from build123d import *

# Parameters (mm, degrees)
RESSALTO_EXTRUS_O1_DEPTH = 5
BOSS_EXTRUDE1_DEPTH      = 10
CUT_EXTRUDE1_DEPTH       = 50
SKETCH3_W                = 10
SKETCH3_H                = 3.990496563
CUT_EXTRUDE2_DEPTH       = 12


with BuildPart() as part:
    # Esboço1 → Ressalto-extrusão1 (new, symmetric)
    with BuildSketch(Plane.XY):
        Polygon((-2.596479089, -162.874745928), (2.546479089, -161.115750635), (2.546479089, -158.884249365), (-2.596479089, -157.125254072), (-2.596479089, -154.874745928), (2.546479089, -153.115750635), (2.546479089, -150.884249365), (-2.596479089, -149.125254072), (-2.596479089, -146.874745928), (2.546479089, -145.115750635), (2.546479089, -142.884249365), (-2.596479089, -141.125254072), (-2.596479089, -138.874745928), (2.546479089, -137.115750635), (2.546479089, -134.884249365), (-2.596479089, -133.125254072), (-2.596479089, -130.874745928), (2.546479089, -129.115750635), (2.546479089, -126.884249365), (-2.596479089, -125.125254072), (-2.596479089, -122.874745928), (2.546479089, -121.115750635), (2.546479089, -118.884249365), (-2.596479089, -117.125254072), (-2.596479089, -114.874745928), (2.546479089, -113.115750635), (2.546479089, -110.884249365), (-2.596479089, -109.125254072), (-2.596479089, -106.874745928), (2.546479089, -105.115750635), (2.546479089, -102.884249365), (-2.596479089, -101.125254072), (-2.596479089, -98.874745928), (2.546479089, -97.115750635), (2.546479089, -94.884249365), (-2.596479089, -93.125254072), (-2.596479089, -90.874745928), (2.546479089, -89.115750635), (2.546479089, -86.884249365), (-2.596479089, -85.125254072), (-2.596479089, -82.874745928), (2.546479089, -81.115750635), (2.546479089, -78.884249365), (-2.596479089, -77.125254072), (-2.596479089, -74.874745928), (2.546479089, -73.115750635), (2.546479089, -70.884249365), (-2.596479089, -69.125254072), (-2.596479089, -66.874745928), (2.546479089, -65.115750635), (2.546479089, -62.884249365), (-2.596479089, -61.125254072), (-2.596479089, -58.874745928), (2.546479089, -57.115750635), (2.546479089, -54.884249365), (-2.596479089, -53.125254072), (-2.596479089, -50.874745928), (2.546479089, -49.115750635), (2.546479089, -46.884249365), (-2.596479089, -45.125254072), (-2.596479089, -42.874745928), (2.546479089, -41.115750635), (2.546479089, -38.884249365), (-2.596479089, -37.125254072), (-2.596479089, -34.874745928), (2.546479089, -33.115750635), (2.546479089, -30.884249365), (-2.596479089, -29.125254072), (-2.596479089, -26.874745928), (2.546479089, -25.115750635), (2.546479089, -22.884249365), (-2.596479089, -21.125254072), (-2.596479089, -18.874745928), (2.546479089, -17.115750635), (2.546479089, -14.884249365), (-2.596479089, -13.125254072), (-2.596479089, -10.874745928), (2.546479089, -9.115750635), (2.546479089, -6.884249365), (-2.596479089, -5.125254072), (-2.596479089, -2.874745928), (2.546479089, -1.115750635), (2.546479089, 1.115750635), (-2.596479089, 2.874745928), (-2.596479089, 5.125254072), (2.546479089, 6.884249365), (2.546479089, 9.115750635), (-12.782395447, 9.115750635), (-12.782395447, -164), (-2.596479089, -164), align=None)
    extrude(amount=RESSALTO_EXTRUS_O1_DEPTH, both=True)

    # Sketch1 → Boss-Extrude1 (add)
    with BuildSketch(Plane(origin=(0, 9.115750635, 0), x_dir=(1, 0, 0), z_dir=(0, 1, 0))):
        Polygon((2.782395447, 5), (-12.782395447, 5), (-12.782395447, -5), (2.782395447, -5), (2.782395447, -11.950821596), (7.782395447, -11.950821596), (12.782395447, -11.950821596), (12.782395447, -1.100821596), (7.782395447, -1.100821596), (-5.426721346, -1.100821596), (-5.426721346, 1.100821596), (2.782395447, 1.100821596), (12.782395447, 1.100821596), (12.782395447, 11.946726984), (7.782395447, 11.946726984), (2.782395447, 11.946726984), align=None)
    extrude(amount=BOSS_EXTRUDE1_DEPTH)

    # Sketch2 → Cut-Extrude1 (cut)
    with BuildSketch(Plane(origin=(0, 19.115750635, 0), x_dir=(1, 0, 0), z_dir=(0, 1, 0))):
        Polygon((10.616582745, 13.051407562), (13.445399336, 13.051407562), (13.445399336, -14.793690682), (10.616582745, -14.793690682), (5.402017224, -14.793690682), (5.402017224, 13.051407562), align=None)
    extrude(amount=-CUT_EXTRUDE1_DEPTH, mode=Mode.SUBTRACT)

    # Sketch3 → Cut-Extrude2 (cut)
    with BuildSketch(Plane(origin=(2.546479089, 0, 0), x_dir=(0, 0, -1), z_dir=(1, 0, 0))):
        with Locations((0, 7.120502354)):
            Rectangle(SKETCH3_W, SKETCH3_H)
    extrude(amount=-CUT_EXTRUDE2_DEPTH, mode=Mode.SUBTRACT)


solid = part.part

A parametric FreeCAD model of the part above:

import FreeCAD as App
import Part
import Sketcher
from FreeCAD import Vector
Q = App.Units.Quantity


def add_polygon(sketch, points):
    """Adds a closed chain of lines whose ends are joined by coincident constraints."""
    first, n = sketch.GeometryCount, len(points)
    for a, b in zip(points, points[1:] + points[:1]):
        sketch.addGeometry(Part.LineSegment(App.Vector(*a, 0), App.Vector(*b, 0)), False)
    for i in range(n):
        sketch.addConstraint(Sketcher.Constraint("Coincident", first + i, 2, first + (i + 1) % n, 1))

doc = App.newDocument("Part")
body = doc.addObject("PartDesign::Body", "Body")

# Sketch on XY plane
sketch1 = body.newObject("Sketcher::SketchObject", "Sketch")
sketch1.AttachmentSupport = (doc.getObject("XY_Plane"), [""])
sketch1.MapMode = "FlatFace"
add_polygon(sketch1, [(-2.6, -162.9), (2.5, -161.1), (2.5, -158.9), (-2.6, -157.1), (-2.6, -154.9), (2.5, -153.1), (2.5, -150.9), (-2.6, -149.1), (-2.6, -146.9), (2.5, -145.1), (2.5, -142.9), (-2.6, -141.1), (-2.6, -138.9), (2.5, -137.1), (2.5, -134.9), (-2.6, -133.1), (-2.6, -130.9), (2.5, -129.1), (2.5, -126.9), (-2.6, -125.1), (-2.6, -122.9), (2.5, -121.1), (2.5, -118.9), (-2.6, -117.1), (-2.6, -114.9), (2.5, -113.1), (2.5, -110.9), (-2.6, -109.1), (-2.6, -106.9), (2.5, -105.1), (2.5, -102.9), (-2.6, -101.1), (-2.6, -98.9), (2.5, -97.1), (2.5, -94.9), (-2.6, -93.1), (-2.6, -90.9), (2.5, -89.1), (2.5, -86.9), (-2.6, -85.1), (-2.6, -82.9), (2.5, -81.1), (2.5, -78.9), (-2.6, -77.1), (-2.6, -74.9), (2.5, -73.1), (2.5, -70.9), (-2.6, -69.1), (-2.6, -66.9), (2.5, -65.1), (2.5, -62.9), (-2.6, -61.1), (-2.6, -58.9), (2.5, -57.1), (2.5, -54.9), (-2.6, -53.1), (-2.6, -50.9), (2.5, -49.1), (2.5, -46.9), (-2.6, -45.1), (-2.6, -42.9), (2.5, -41.1), (2.5, -38.9), (-2.6, -37.1), (-2.6, -34.9), (2.5, -33.1), (2.5, -30.9), (-2.6, -29.1), (-2.6, -26.9), (2.5, -25.1), (2.5, -22.9), (-2.6, -21.1), (-2.6, -18.9), (2.5, -17.1), (2.5, -14.9), (-2.6, -13.1), (-2.6, -10.9), (2.5, -9.1), (2.5, -6.9), (-2.6, -5.1), (-2.6, -2.9), (2.5, -1.1), (2.5, 1.1), (-2.6, 2.9), (-2.6, 5.1), (2.5, 6.9), (2.5, 9.1), (-12.8, 9.1), (-12.8, -164), (-2.6, -164)])  # lines 0-89
sketch1.addConstraint([
    Sketcher.Constraint("Vertical", 1),
    Sketcher.Constraint("Vertical", 3),
    Sketcher.Constraint("Vertical", 5),
    Sketcher.Constraint("Vertical", 7),
    Sketcher.Constraint("Vertical", 9),
    Sketcher.Constraint("Vertical", 11),
    Sketcher.Constraint("Vertical", 13),
    Sketcher.Constraint("Vertical", 15),
    Sketcher.Constraint("Vertical", 17),
    Sketcher.Constraint("Vertical", 19),
    Sketcher.Constraint("Vertical", 21),
    Sketcher.Constraint("Vertical", 23),
    Sketcher.Constraint("Vertical", 25),
    Sketcher.Constraint("Vertical", 27),
    Sketcher.Constraint("Vertical", 29),
    Sketcher.Constraint("Vertical", 31),
    Sketcher.Constraint("Vertical", 33),
    Sketcher.Constraint("Vertical", 35),
    Sketcher.Constraint("Vertical", 37),
    Sketcher.Constraint("Vertical", 39),
    Sketcher.Constraint("Vertical", 41),
    Sketcher.Constraint("Vertical", 43),
    Sketcher.Constraint("Vertical", 45),
    Sketcher.Constraint("Vertical", 47),
    Sketcher.Constraint("Vertical", 49),
    Sketcher.Constraint("Vertical", 51),
    Sketcher.Constraint("Vertical", 53),
    Sketcher.Constraint("Vertical", 55),
    Sketcher.Constraint("Vertical", 57),
    Sketcher.Constraint("Vertical", 59),
    Sketcher.Constraint("Vertical", 61),
    Sketcher.Constraint("Vertical", 63),
    Sketcher.Constraint("Vertical", 65),
    Sketcher.Constraint("Vertical", 67),
    Sketcher.Constraint("Vertical", 69),
    Sketcher.Constraint("Vertical", 71),
    Sketcher.Constraint("Vertical", 73),
    Sketcher.Constraint("Vertical", 75),
    Sketcher.Constraint("Vertical", 77),
    Sketcher.Constraint("Vertical", 79),
    Sketcher.Constraint("Vertical", 81),
    Sketcher.Constraint("Vertical", 83),
    Sketcher.Constraint("Vertical", 85),
    Sketcher.Constraint("Horizontal", 86),
    Sketcher.Constraint("Vertical", 87),
    Sketcher.Constraint("Horizontal", 88),
    Sketcher.Constraint("Vertical", 89),
    Sketcher.Constraint("Symmetric", 79, 2, 82, 2, -1),
    Sketcher.Constraint("Symmetric", 77, 2, 84, 2, -1),
    Sketcher.Constraint("Parallel", 0, 4),
    Sketcher.Constraint("Parallel", 2, 6),
    Sketcher.Constraint("Parallel", 4, 8),
    Sketcher.Constraint("Parallel", 6, 10),
    Sketcher.Constraint("Parallel", 8, 12),
    Sketcher.Constraint("Parallel", 10, 14),
    Sketcher.Constraint("Parallel", 12, 16),
    Sketcher.Constraint("Parallel", 14, 18),
    Sketcher.Constraint("Parallel", 16, 20),
    Sketcher.Constraint("Parallel", 18, 22),
    Sketcher.Constraint("Parallel", 20, 24),
    Sketcher.Constraint("Parallel", 22, 26),
    Sketcher.Constraint("Parallel", 24, 28),
    Sketcher.Constraint("Parallel", 26, 30),
    Sketcher.Constraint("Parallel", 28, 32),
    Sketcher.Constraint("Parallel", 30, 34),
    Sketcher.Constraint("Parallel", 32, 36),
    Sketcher.Constraint("Parallel", 34, 38),
    Sketcher.Constraint("Parallel", 36, 40),
    Sketcher.Constraint("Parallel", 38, 42),
    Sketcher.Constraint("Parallel", 40, 44),
    Sketcher.Constraint("Parallel", 42, 46),
    Sketcher.Constraint("Parallel", 44, 48),
    Sketcher.Constraint("Parallel", 46, 50),
    Sketcher.Constraint("Parallel", 48, 52),
    Sketcher.Constraint("Parallel", 50, 54),
    Sketcher.Constraint("Parallel", 52, 56),
    Sketcher.Constraint("Parallel", 54, 58),
    Sketcher.Constraint("Parallel", 56, 60),
    Sketcher.Constraint("Parallel", 58, 62),
    Sketcher.Constraint("Parallel", 60, 64),
    Sketcher.Constraint("Parallel", 62, 66),
    Sketcher.Constraint("Parallel", 64, 68),
    Sketcher.Constraint("Parallel", 66, 70),
    Sketcher.Constraint("Parallel", 68, 72),
    Sketcher.Constraint("Parallel", 70, 74),
    Sketcher.Constraint("Parallel", 72, 76),
    Sketcher.Constraint("Parallel", 74, 78),
    Sketcher.Constraint("Parallel", 76, 80),
    Sketcher.Constraint("Parallel", 78, 82),
    Sketcher.Constraint("Parallel", 80, 84),
    Sketcher.Constraint("Vertical", 1, 2, 4, 2),
    Sketcher.Constraint("Vertical", 3, 2, 6, 2),
    Sketcher.Constraint("Vertical", 5, 2, 8, 2),
    Sketcher.Constraint("Vertical", 7, 2, 10, 2),
    Sketcher.Constraint("Vertical", 9, 2, 12, 2),
    Sketcher.Constraint("Vertical", 11, 2, 14, 2),
    Sketcher.Constraint("Vertical", 13, 2, 16, 2),
    Sketcher.Constraint("Vertical", 15, 2, 18, 2),
    Sketcher.Constraint("Vertical", 17, 2, 20, 2),
    Sketcher.Constraint("Vertical", 19, 2, 22, 2),
    Sketcher.Constraint("Vertical", 21, 2, 24, 2),
    Sketcher.Constraint("Vertical", 23, 2, 26, 2),
    Sketcher.Constraint("Vertical", 25, 2, 28, 2),
    Sketcher.Constraint("Vertical", 27, 2, 30, 2),
    Sketcher.Constraint("Vertical", 29, 2, 32, 2),
    Sketcher.Constraint("Vertical", 31, 2, 34, 2),
    Sketcher.Constraint("Vertical", 33, 2, 36, 2),
    Sketcher.Constraint("Vertical", 35, 2, 38, 2),
    Sketcher.Constraint("Vertical", 37, 2, 40, 2),
    Sketcher.Constraint("Vertical", 39, 2, 42, 2),
    Sketcher.Constraint("Vertical", 41, 2, 44, 2),
    Sketcher.Constraint("Vertical", 43, 2, 46, 2),
    Sketcher.Constraint("Vertical", 45, 2, 48, 2),
    Sketcher.Constraint("Vertical", 47, 2, 50, 2),
    Sketcher.Constraint("Vertical", 49, 2, 52, 2),
    Sketcher.Constraint("Vertical", 51, 2, 54, 2),
    Sketcher.Constraint("Vertical", 53, 2, 56, 2),
    Sketcher.Constraint("Vertical", 55, 2, 58, 2),
    Sketcher.Constraint("Vertical", 57, 2, 60, 2),
    Sketcher.Constraint("Vertical", 59, 2, 62, 2),
    Sketcher.Constraint("Vertical", 61, 2, 64, 2),
    Sketcher.Constraint("Vertical", 63, 2, 66, 2),
    Sketcher.Constraint("Vertical", 65, 2, 68, 2),
    Sketcher.Constraint("Vertical", 67, 2, 70, 2),
    Sketcher.Constraint("Vertical", 69, 2, 72, 2),
    Sketcher.Constraint("Vertical", 71, 2, 74, 2),
    Sketcher.Constraint("Vertical", 73, 2, 76, 2),
    Sketcher.Constraint("Vertical", 75, 2, 78, 2),
    Sketcher.Constraint("Vertical", 77, 2, 80, 2),
    Sketcher.Constraint("Vertical", 83, 2, 88, 2),
    Sketcher.Constraint("Equal", 1, 5),
    Sketcher.Constraint("Equal", 3, 7),
    Sketcher.Constraint("Equal", 5, 9),
    Sketcher.Constraint("Equal", 7, 11),
    Sketcher.Constraint("Equal", 9, 13),
    Sketcher.Constraint("Equal", 11, 15),
    Sketcher.Constraint("Equal", 13, 17),
    Sketcher.Constraint("Equal", 15, 19),
    Sketcher.Constraint("Equal", 17, 21),
    Sketcher.Constraint("Equal", 19, 23),
    Sketcher.Constraint("Equal", 21, 25),
    Sketcher.Constraint("Equal", 23, 27),
    Sketcher.Constraint("Equal", 25, 29),
    Sketcher.Constraint("Equal", 27, 31),
    Sketcher.Constraint("Equal", 29, 33),
    Sketcher.Constraint("Equal", 31, 35),
    Sketcher.Constraint("Equal", 33, 37),
    Sketcher.Constraint("Equal", 35, 39),
    Sketcher.Constraint("Equal", 37, 41),
    Sketcher.Constraint("Equal", 39, 43),
    Sketcher.Constraint("Equal", 41, 45),
    Sketcher.Constraint("Equal", 43, 47),
    Sketcher.Constraint("Equal", 45, 49),
    Sketcher.Constraint("Equal", 47, 51),
    Sketcher.Constraint("Equal", 49, 53),
    Sketcher.Constraint("Equal", 51, 55),
    Sketcher.Constraint("Equal", 53, 57),
    Sketcher.Constraint("Equal", 55, 59),
    Sketcher.Constraint("Equal", 57, 61),
    Sketcher.Constraint("Equal", 59, 63),
    Sketcher.Constraint("Equal", 61, 65),
    Sketcher.Constraint("Equal", 63, 67),
    Sketcher.Constraint("Equal", 65, 69),
    Sketcher.Constraint("Equal", 67, 71),
    Sketcher.Constraint("Equal", 69, 73),
    Sketcher.Constraint("Equal", 71, 75),
    Sketcher.Constraint("Equal", 73, 77),
    Sketcher.Constraint("Equal", 75, 79),
    Sketcher.Constraint("Equal", 77, 81),
    Sketcher.Constraint("Equal", 79, 83),
    Sketcher.Constraint("Equal", 81, 85),
    Sketcher.Constraint("DistanceY", 87, 2, -1, 1, Q("164 mm")),
    Sketcher.Constraint("DistanceY", 1, 1, 1, 2, Q("2.231501 mm")),
    Sketcher.Constraint("DistanceY", 3, 1, 3, 2, Q("2.250508 mm")),
    Sketcher.Constraint("DistanceY", 87, 2, 87, 1, Q("173.115751 mm")),
    Sketcher.Constraint("DistanceX", 86, 2, 86, 1, Q("15.328875 mm")),
    Sketcher.Constraint("DistanceX", 88, 1, 88, 2, Q("10.185916 mm")),
    Sketcher.Constraint("DistanceX", -1, 1, 0, 2, Q("2.546479 mm")),
])
pad1 = body.newObject("PartDesign::Pad", "Pad")
pad1.Profile = sketch1
pad1.Length = 10
pad1.Midplane = True

# Sketch on XZ plane
sketch2 = body.newObject("Sketcher::SketchObject", "Sketch001")
sketch2.AttachmentSupport = (doc.getObject("XZ_Plane"), [""])
sketch2.MapMode = "FlatFace"
sketch2.AttachmentOffset = App.Placement(Vector(0, 0, -9.115751), App.Rotation())
add_polygon(sketch2, [(2.8, -5), (-12.8, -5), (-12.8, 5), (2.8, 5), (2.8, 12), (12.8, 12), (12.8, 1.1), (-5.4, 1.1), (-5.4, -1.1), (12.8, -1.1), (12.8, -11.9), (2.8, -11.9)])  # lines 0-11
sketch2.addConstraint([
    Sketcher.Constraint("Horizontal", 0),
    Sketcher.Constraint("Vertical", 1),
    Sketcher.Constraint("Horizontal", 2),
    Sketcher.Constraint("Vertical", 3),
    Sketcher.Constraint("Horizontal", 4),
    Sketcher.Constraint("Vertical", 5),
    Sketcher.Constraint("Horizontal", 6),
    Sketcher.Constraint("Vertical", 7),
    Sketcher.Constraint("Horizontal", 8),
    Sketcher.Constraint("Vertical", 9),
    Sketcher.Constraint("Horizontal", 10),
    Sketcher.Constraint("Vertical", 11),
    Sketcher.Constraint("Symmetric", 5, 2, 8, 2, -1),
    Sketcher.Constraint("Symmetric", 2, 2, 11, 2, -1),
    Sketcher.Constraint("Equal", 10, 1),
    Sketcher.Constraint("DistanceX", 4, 1, 4, 2, Q("10 mm")),
    Sketcher.Constraint("DistanceY", 5, 2, 5, 1, Q("10.85 mm")),
    Sketcher.Constraint("DistanceX", 0, 2, 0, 1, Q("15.564791 mm")),
    Sketcher.Constraint("DistanceY", 3, 1, 3, 2, Q("6.950822 mm")),
    Sketcher.Constraint("DistanceX", 6, 2, 6, 1, Q("18.209117 mm")),
    Sketcher.Constraint("DistanceY", 9, 2, 9, 1, Q("10.845905 mm")),
    Sketcher.Constraint("DistanceX", 6, 2, -1, 1, Q("5.426721 mm")),
])
pad2 = body.newObject("PartDesign::Pad", "Pad001")
pad2.Profile = sketch2
pad2.Length = 10
pad2.Reversed = True

# Sketch on XZ plane
sketch3 = body.newObject("Sketcher::SketchObject", "Sketch002")
sketch3.AttachmentSupport = (doc.getObject("XZ_Plane"), [""])
sketch3.MapMode = "FlatFace"
sketch3.AttachmentOffset = App.Placement(Vector(0, 0, -19.115751), App.Rotation())
add_polygon(sketch3, [(13, -13), (5, -13), (5, 15), (13, 15)])  # lines 0-3
sketch3.addConstraint([
    Sketcher.Constraint("Horizontal", 0),
    Sketcher.Constraint("Vertical", 1),
    Sketcher.Constraint("Horizontal", 2),
    Sketcher.Constraint("Vertical", 3),
    Sketcher.Constraint("DistanceY", 1, 1, 1, 2, Q("27.845098 mm")),
    Sketcher.Constraint("DistanceX", -1, 1, 2, 2, Q("13.445399 mm")),
    Sketcher.Constraint("DistanceX", 0, 2, 0, 1, Q("8.043382 mm")),
    Sketcher.Constraint("DistanceY", -1, 1, 1, 2, Q("14.793691 mm")),
])
pocket1 = body.newObject("PartDesign::Pocket", "Pocket")
pocket1.Profile = sketch3
pocket1.Length = 50
pocket1.Reversed = True

# Sketch on YZ plane
sketch4 = body.newObject("Sketcher::SketchObject", "Sketch003")
sketch4.AttachmentSupport = (doc.getObject("YZ_Plane"), [""])
sketch4.MapMode = "FlatFace"
sketch4.AttachmentOffset = App.Placement(Vector(0, 0, 2.546479), App.Rotation())
add_polygon(sketch4, [(9.1, 5), (5.1, 5), (5.1, -5), (9.1, -5)])  # lines 0-3
sketch4.addConstraint([
    Sketcher.Constraint("Horizontal", 0),
    Sketcher.Constraint("Vertical", 1),
    Sketcher.Constraint("Horizontal", 2),
    Sketcher.Constraint("Vertical", 3),
    Sketcher.Constraint("DistanceY", 1, 2, 1, 1, Q("10 mm")),
    Sketcher.Constraint("DistanceY", -1, 1, 0, 2, Q("5 mm")),
    Sketcher.Constraint("DistanceX", 0, 2, 0, 1, Q("3.990497 mm")),
    Sketcher.Constraint("DistanceX", -1, 1, 2, 2, Q("9.115751 mm")),
])
pocket2 = body.newObject("PartDesign::Pocket", "Pocket001")
pocket2.Profile = sketch4
pocket2.Length = 12

doc.recompute()
